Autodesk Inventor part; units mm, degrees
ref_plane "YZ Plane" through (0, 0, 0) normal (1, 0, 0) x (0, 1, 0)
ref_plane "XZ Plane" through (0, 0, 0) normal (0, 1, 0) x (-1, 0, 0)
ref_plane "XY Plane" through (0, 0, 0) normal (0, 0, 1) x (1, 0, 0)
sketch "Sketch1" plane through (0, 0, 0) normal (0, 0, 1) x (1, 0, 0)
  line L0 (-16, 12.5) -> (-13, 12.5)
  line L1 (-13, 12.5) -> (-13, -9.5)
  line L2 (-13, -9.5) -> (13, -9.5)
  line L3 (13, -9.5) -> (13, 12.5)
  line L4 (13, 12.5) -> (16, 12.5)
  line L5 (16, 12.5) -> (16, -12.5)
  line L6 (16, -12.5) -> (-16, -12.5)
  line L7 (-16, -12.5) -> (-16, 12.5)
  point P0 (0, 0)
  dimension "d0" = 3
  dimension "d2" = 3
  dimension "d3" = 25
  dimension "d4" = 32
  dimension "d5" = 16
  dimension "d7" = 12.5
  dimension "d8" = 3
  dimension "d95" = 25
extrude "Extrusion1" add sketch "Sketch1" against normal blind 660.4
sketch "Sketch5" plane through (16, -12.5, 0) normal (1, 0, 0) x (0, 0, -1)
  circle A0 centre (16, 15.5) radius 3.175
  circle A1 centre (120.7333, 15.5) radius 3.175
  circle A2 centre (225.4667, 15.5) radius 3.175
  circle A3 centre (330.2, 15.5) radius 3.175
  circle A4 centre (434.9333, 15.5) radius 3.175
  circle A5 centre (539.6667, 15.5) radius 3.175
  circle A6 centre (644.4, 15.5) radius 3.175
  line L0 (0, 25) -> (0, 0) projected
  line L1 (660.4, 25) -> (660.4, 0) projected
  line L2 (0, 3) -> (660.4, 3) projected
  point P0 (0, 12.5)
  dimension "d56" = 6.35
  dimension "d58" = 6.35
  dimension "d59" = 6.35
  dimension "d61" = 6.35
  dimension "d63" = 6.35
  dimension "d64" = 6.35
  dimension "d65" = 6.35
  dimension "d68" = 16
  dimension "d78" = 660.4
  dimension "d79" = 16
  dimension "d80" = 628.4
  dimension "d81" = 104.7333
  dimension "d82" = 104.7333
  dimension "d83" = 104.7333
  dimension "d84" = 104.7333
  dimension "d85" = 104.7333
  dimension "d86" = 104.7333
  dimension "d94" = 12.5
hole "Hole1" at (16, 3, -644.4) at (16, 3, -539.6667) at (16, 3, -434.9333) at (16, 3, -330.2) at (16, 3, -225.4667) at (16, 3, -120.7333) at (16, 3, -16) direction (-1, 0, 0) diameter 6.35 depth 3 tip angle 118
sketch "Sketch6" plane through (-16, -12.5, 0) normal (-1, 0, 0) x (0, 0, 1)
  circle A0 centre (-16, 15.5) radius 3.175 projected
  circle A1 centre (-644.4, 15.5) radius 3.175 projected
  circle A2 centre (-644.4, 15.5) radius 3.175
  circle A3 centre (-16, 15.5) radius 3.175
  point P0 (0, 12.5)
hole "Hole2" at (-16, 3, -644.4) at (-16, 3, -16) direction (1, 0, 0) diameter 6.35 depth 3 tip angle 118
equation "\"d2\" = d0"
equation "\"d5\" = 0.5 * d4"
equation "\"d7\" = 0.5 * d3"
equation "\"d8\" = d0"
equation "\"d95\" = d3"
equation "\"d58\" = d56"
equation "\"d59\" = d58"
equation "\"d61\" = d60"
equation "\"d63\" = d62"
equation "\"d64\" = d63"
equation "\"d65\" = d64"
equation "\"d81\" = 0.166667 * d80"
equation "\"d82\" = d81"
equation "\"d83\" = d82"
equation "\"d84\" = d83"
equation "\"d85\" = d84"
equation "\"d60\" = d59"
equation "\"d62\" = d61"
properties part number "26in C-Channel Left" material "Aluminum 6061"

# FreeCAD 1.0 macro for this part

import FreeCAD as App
import Part
import Sketcher

V = App.Vector


def add_polygon(sketch, points):
    """Adds a closed chain of lines whose ends are joined by coincident constraints."""
    first, n = sketch.GeometryCount, len(points)
    for a, b in zip(points, points[1:] + points[:1]):
        sketch.addGeometry(Part.LineSegment(App.Vector(*a, 0), App.Vector(*b, 0)), False)
    for i in range(n):
        sketch.addConstraint(Sketcher.Constraint("Coincident", first + i, 2, first + (i + 1) % n, 1))

doc = App.newDocument("Part")
body = doc.addObject("PartDesign::Body", "Body")

# Sketch on XY plane
sketch1 = body.newObject("Sketcher::SketchObject", "Sketch")
sketch1.AttachmentSupport = (doc.getObject("XY_Plane"), [""])
sketch1.MapMode = "FlatFace"
add_polygon(sketch1, [(-13, 12.5), (-16, 12.5), (-16, -12.5), (16, -12.5), (16, 12.5), (13, 12.5), (13, -9.5), (-13, -9.5)])  # lines 0-7
sketch1.addConstraint(Sketcher.Constraint("Horizontal", 0))
sketch1.addConstraint(Sketcher.Constraint("Vertical", 1))
sketch1.addConstraint(Sketcher.Constraint("Horizontal", 2))
sketch1.addConstraint(Sketcher.Constraint("Vertical", 3))
sketch1.addConstraint(Sketcher.Constraint("Horizontal", 4))
sketch1.addConstraint(Sketcher.Constraint("Vertical", 5))
sketch1.addConstraint(Sketcher.Constraint("Horizontal", 6))
sketch1.addConstraint(Sketcher.Constraint("Vertical", 7))
sketch1.addConstraint(Sketcher.Constraint("Symmetric", 0, 2, 2, 2, -1, 1))
sketch1.addConstraint(Sketcher.Constraint("Symmetric", 4, 2, 7, 2, -2))
sketch1.addConstraint(Sketcher.Constraint("DistanceX", 0, 2, 0, 1, 3.0))
sketch1.addConstraint(Sketcher.Constraint("DistanceX", 2, 1, 2, 2, 32.0))
sketch1.addConstraint(Sketcher.Constraint("DistanceY", 1, 2, 1, 1, 25.0))
sketch1.addConstraint(Sketcher.Constraint("DistanceY", 2, 2, 5, 2, 3.0))
pad1 = body.newObject("PartDesign::Pad", "Pad")
pad1.Profile = sketch1
pad1.Length = 660.4
pad1.Reversed = True

# Sketch on YZ plane
sketch2 = body.newObject("Sketcher::SketchObject", "Sketch001")
sketch2.AttachmentSupport = (doc.getObject("YZ_Plane"), [""])
sketch2.MapMode = "FlatFace"
sketch2.AttachmentOffset = App.Placement(V(0, 0, 16), App.Rotation())
sketch2.addGeometry(Part.Circle(V(3, -644.4, 0), V(0, 0, 1), 3.2), False)
sketch2.addGeometry(Part.Circle(V(3, -539.7, 0), V(0, 0, 1), 3.2), False)
sketch2.addGeometry(Part.Circle(V(3, -434.9, 0), V(0, 0, 1), 3.2), False)
sketch2.addGeometry(Part.Circle(V(3, -330.2, 0), V(0, 0, 1), 3.2), False)
sketch2.addGeometry(Part.Circle(V(3, -225.5, 0), V(0, 0, 1), 3.2), False)
sketch2.addGeometry(Part.Circle(V(3, -120.7, 0), V(0, 0, 1), 3.2), False)
sketch2.addGeometry(Part.Circle(V(3, -16, 0), V(0, 0, 1), 3.2), False)
sketch2.addConstraint(Sketcher.Constraint("Equal", 0, 1))
sketch2.addConstraint(Sketcher.Constraint("Equal", 1, 2))
sketch2.addConstraint(Sketcher.Constraint("Equal", 2, 3))
sketch2.addConstraint(Sketcher.Constraint("Equal", 3, 4))
sketch2.addConstraint(Sketcher.Constraint("Equal", 4, 5))
sketch2.addConstraint(Sketcher.Constraint("Equal", 5, 6))
sketch2.addConstraint(Sketcher.Constraint("Vertical", 0, 3, 1, 3))
sketch2.addConstraint(Sketcher.Constraint("Vertical", 1, 3, 2, 3))
sketch2.addConstraint(Sketcher.Constraint("Vertical", 2, 3, 3, 3))
sketch2.addConstraint(Sketcher.Constraint("Vertical", 3, 3, 4, 3))
sketch2.addConstraint(Sketcher.Constraint("Vertical", 4, 3, 5, 3))
sketch2.addConstraint(Sketcher.Constraint("Vertical", 5, 3, 6, 3))
sketch2.addConstraint(Sketcher.Constraint("Diameter", 0, 6.35))
sketch2.addConstraint(Sketcher.Constraint("DistanceX", -1, 1, 0, 3, 3.0))
sketch2.addConstraint(Sketcher.Constraint("DistanceY", 6, 3, -1, 1, 16.0))
sketch2.addConstraint(Sketcher.Constraint("DistanceY", 0, 3, -1, 1, 644.4))
sketch2.addConstraint(Sketcher.Constraint("DistanceY", 3, 3, -1, 1, 330.2))
sketch2.addConstraint(Sketcher.Constraint("DistanceY", 1, 3, 4, 3, 314.2))
sketch2.addConstraint(Sketcher.Constraint("DistanceY", 2, 3, 5, 3, 314.2))
sketch2.addConstraint(Sketcher.Constraint("DistanceY", 1, 3, -1, 1, 539.6667))
sketch2.addConstraint(Sketcher.Constraint("DistanceY", 2, 3, -1, 1, 434.9333))
doc.recompute()
hole = body.newObject("PartDesign::Hole", "Hole")
hole.Profile = sketch2
hole.ThreadType = "None"
hole.Diameter = 6.35
hole.DepthType = "Dimension"
hole.Depth = 3
hole.DrillPoint = "Angled"
hole.DrillPointAngle = 118

# Sketch on YZ plane
sketch3 = body.newObject("Sketcher::SketchObject", "Sketch002")
sketch3.AttachmentSupport = (doc.getObject("YZ_Plane"), [""])
sketch3.MapMode = "FlatFace"
sketch3.AttachmentOffset = App.Placement(V(0, 0, -16), App.Rotation())
sketch3.addGeometry(Part.Circle(V(3, -644.4, 0), V(0, 0, 1), 3.2), False)
sketch3.addGeometry(Part.Circle(V(3, -16, 0), V(0, 0, 1), 3.2), False)
sketch3.addConstraint(Sketcher.Constraint("Equal", 0, 1))
sketch3.addConstraint(Sketcher.Constraint("Vertical", 0, 3, 1, 3))
sketch3.addConstraint(Sketcher.Constraint("Diameter", 0, 6.35))
sketch3.addConstraint(Sketcher.Constraint("DistanceX", -1, 1, 0, 3, 3.0))
sketch3.addConstraint(Sketcher.Constraint("DistanceY", 1, 3, -1, 1, 16.0))
sketch3.addConstraint(Sketcher.Constraint("DistanceY", 0, 3, -1, 1, 644.4))
doc.recompute()
hole2 = body.newObject("PartDesign::Hole", "Hole001")
hole2.Profile = sketch3
hole2.ThreadType = "None"
hole2.Diameter = 6.35
hole2.DepthType = "Dimension"
hole2.Depth = 3
hole2.DrillPoint = "Angled"
hole2.DrillPointAngle = 118
hole2.Reversed = True

doc.recompute()
